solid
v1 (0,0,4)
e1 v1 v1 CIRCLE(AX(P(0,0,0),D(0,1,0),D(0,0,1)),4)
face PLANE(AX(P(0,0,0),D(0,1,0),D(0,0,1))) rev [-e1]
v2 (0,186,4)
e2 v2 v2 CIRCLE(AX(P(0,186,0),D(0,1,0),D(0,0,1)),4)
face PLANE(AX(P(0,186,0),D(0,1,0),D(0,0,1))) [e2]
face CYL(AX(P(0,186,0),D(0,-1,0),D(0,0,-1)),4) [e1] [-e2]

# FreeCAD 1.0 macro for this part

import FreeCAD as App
import Part
import Sketcher
from FreeCAD import Vector

doc = App.newDocument("Part")
params = doc.addObject("Spreadsheet::Sheet", "Params")
for row, (alias, value) in enumerate([
    ("sketch1_diameter", "8 mm"),
    ("pad1_length", "186 mm"),
], start=1):
    params.set(f"A{row}", alias)
    params.set(f"B{row}", "=" + value)
    params.setAlias(f"B{row}", alias)

body = doc.addObject("PartDesign::Body", "Body")

sketch1 = body.newObject("Sketcher::SketchObject", "Sketch")
sketch1.AttachmentSupport = (doc.getObject("XZ_Plane"), [""])
sketch1.MapMode = "FlatFace"
sketch1.addGeometry(Part.Circle(Vector(0, 0, 0), Vector(0, 0, 1), 4), False)
sketch1.addConstraint(Sketcher.Constraint("Coincident", 0, 3, -1, 1))
sketch1.addConstraint(Sketcher.Constraint("Diameter", 0, 8.0))
sketch1.setExpression("Constraints[1]", "Params.sketch1_diameter")
pad1 = body.newObject("PartDesign::Pad", "Pad")
pad1.Profile = sketch1
pad1.setExpression("Length", "Params.pad1_length")
pad1.Reversed = True

doc.recompute()
